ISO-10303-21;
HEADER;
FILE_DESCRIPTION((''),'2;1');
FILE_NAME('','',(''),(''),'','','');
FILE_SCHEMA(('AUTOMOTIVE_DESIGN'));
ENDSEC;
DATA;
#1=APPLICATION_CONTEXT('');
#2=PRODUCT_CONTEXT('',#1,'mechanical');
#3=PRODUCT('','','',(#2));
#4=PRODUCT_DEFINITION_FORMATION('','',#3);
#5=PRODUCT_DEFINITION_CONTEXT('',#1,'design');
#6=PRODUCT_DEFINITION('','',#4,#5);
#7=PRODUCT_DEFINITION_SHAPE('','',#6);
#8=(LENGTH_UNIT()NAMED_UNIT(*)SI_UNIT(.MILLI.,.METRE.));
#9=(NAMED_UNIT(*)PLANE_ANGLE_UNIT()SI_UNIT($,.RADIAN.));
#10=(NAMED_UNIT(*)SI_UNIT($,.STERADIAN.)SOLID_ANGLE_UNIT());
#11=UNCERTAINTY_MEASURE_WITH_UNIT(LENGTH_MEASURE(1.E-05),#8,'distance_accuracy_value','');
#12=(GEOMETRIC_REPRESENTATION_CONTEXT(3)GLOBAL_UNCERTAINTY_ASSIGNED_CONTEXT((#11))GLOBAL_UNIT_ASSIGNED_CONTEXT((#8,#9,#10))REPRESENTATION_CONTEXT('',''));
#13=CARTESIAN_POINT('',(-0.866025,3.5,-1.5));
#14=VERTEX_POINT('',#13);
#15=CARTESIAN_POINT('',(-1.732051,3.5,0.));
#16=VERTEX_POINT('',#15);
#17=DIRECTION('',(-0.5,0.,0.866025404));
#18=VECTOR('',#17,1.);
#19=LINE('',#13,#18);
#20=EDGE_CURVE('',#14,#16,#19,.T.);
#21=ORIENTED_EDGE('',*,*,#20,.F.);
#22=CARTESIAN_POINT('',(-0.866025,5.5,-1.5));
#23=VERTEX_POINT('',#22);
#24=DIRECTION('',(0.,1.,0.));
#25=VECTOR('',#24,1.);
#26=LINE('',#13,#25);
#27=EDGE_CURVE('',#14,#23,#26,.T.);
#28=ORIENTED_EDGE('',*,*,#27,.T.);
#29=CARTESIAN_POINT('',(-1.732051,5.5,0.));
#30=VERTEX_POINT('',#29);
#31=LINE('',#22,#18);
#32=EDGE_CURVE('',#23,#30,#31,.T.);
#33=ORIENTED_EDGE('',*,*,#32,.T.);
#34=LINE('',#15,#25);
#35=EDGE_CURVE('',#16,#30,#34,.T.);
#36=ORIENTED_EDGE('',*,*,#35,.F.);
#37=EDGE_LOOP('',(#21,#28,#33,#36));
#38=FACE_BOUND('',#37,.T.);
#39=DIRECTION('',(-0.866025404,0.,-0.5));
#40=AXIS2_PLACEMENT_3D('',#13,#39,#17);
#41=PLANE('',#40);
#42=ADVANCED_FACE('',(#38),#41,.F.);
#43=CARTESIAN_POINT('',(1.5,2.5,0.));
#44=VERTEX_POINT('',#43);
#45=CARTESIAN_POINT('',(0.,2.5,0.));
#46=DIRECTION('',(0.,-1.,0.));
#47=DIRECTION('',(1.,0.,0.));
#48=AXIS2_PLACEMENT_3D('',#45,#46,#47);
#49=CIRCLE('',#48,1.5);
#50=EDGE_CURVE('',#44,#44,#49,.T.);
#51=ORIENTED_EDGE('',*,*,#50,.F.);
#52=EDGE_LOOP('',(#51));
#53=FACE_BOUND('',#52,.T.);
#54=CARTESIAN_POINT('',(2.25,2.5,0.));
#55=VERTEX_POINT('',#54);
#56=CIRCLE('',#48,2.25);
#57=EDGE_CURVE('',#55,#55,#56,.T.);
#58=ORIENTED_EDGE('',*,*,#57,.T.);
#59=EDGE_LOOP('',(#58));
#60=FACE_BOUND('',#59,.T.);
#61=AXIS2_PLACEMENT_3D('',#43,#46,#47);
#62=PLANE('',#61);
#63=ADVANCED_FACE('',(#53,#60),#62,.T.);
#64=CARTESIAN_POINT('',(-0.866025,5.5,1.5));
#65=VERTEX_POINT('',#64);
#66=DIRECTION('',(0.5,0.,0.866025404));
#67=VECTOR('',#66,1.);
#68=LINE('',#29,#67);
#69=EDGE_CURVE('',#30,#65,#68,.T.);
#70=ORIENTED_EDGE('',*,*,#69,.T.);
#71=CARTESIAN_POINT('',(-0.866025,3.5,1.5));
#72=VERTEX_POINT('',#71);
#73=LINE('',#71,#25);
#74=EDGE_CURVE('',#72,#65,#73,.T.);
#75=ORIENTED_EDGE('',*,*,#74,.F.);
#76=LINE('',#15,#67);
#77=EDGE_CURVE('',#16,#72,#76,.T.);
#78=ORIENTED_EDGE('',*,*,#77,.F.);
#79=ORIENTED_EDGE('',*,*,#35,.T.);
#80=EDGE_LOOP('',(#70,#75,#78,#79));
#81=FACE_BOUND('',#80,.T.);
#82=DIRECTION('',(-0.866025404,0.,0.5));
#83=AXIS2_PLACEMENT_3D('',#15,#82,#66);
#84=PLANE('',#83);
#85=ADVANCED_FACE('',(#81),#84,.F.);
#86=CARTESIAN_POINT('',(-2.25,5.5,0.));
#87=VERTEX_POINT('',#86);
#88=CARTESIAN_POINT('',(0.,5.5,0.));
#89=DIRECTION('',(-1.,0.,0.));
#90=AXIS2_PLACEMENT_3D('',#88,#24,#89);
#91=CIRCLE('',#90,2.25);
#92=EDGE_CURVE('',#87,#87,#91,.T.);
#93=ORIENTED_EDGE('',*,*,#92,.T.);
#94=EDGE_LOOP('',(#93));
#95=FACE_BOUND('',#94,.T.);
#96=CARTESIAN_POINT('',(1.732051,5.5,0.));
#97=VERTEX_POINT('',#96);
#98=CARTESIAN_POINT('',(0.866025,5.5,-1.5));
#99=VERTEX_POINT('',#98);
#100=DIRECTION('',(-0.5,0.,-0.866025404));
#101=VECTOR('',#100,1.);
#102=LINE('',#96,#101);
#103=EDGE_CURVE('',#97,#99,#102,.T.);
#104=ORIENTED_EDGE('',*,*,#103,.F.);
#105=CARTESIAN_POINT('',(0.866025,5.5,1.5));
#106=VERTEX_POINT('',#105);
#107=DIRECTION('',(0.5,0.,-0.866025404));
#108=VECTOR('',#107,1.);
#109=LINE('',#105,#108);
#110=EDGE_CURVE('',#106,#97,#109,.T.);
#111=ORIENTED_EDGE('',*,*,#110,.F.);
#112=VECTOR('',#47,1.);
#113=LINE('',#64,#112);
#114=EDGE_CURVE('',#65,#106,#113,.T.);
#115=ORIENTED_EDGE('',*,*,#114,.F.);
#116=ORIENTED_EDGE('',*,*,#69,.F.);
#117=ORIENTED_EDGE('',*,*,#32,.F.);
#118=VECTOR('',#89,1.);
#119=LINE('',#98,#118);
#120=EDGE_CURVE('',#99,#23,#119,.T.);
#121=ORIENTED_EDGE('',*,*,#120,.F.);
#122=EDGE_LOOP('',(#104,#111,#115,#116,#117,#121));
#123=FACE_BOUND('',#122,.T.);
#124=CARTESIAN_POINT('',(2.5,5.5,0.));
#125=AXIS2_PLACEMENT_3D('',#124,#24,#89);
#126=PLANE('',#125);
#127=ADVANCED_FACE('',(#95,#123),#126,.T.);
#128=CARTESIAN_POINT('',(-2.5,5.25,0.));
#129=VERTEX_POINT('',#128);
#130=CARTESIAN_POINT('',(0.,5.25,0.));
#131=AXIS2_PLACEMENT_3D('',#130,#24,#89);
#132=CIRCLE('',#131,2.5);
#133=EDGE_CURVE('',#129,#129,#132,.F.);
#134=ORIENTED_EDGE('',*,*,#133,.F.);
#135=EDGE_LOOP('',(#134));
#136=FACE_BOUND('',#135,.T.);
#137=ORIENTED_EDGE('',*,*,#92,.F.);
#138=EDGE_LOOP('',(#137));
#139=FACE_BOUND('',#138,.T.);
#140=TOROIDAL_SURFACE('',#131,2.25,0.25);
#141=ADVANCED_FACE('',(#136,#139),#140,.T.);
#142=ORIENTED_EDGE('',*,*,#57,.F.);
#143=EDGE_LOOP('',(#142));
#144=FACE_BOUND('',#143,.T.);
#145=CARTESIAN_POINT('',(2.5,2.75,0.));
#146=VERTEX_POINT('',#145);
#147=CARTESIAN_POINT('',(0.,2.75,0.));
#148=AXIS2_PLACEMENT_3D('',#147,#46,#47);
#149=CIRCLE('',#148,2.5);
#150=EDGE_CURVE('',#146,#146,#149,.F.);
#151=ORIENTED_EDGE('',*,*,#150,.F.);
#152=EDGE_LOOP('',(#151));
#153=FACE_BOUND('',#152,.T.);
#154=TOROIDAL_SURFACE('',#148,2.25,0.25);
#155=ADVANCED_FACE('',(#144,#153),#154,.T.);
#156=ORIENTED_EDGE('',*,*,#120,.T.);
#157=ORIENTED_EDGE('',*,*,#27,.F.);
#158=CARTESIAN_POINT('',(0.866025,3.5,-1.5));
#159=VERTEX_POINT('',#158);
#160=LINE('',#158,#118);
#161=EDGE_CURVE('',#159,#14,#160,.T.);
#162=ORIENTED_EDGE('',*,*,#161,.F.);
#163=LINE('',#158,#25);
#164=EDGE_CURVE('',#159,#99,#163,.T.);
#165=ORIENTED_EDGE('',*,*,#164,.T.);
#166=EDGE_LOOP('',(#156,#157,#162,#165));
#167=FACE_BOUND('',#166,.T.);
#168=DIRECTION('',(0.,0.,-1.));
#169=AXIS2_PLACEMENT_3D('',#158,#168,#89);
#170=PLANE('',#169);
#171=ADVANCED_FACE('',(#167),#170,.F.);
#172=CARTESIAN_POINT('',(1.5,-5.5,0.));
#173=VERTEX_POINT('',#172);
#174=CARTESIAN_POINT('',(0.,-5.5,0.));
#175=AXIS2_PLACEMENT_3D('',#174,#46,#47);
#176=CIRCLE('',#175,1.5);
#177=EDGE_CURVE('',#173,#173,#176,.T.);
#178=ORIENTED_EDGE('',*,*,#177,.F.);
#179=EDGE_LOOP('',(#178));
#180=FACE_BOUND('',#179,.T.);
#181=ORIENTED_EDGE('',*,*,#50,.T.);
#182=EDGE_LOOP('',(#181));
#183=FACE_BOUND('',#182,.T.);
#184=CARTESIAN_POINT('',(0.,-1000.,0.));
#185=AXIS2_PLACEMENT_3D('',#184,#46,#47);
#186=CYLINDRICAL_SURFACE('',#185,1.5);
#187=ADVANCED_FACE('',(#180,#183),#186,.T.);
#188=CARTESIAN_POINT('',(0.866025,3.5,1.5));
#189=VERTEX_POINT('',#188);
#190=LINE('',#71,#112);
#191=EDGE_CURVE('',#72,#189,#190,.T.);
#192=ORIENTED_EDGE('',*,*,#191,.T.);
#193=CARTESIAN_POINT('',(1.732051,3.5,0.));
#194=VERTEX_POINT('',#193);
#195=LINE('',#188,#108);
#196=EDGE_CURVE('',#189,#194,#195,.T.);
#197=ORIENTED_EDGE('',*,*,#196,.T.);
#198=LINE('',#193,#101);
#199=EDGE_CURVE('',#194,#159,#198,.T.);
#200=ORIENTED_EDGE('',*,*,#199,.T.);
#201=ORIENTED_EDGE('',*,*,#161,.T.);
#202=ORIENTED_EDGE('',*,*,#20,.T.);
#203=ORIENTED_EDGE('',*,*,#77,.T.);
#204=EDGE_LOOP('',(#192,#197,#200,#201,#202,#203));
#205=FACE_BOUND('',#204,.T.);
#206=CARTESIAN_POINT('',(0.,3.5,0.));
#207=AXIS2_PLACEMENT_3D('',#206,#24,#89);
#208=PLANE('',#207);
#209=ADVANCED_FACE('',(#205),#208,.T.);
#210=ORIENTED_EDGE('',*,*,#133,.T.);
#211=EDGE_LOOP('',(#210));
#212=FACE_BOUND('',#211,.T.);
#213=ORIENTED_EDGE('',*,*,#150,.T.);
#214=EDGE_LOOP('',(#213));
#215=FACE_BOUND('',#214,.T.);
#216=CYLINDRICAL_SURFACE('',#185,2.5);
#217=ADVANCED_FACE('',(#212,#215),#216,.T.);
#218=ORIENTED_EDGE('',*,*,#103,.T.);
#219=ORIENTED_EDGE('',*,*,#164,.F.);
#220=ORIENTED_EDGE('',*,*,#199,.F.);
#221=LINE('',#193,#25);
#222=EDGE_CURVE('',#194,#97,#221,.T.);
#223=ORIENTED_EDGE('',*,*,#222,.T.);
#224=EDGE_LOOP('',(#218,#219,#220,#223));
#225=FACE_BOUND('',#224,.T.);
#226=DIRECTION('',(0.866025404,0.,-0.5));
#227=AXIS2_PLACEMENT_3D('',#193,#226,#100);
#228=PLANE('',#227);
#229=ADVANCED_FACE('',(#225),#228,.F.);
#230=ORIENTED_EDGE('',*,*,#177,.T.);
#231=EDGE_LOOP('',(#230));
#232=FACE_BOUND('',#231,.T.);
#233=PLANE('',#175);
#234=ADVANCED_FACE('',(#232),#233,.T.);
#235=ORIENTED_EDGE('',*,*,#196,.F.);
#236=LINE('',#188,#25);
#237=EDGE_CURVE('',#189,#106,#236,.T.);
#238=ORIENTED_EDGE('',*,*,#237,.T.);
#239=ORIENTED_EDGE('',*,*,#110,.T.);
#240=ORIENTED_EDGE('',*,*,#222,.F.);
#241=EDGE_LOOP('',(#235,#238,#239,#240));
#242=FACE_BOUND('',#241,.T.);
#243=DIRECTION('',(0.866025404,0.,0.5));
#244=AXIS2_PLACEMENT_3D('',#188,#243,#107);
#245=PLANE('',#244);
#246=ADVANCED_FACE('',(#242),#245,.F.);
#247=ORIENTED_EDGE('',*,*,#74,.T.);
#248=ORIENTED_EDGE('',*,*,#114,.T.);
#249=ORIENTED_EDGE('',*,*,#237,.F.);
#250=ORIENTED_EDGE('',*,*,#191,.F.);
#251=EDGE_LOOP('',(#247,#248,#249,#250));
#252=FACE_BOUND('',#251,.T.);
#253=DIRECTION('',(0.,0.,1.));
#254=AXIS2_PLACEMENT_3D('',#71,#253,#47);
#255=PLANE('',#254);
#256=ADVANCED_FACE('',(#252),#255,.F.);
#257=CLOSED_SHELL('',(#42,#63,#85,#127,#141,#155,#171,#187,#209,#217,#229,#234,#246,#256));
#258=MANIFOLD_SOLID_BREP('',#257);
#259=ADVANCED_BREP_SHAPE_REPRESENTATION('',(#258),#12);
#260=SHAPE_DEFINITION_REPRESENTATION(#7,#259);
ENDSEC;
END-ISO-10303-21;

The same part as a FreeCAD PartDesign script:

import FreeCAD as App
import Part
import Sketcher

V = App.Vector
Q = App.Units.Quantity


def edges_at(feature, points):
    """Names of the edges that pass closest to the given points."""
    edges = feature.Shape.Edges
    near = lambda p: min(range(len(edges)), key=lambda i: edges[i].distToShape(Part.Vertex(*p))[0])
    return sorted({f"Edge{near(p) + 1}" for p in points})

doc = App.newDocument("Part")
body = doc.addObject("PartDesign::Body", "Body")

sketch1 = body.newObject("Sketcher::SketchObject", "Sketch")
sketch1.AttachmentSupport = (doc.getObject("XY_Plane"), [""])
sketch1.MapMode = "FlatFace"
sketch1.addGeometry([
    Part.LineSegment(V(0, -5.5, 0), V(1.5, -5.5, 0)),
    Part.LineSegment(V(1.5, -5.5, 0), V(1.5, 2.5, 0)),
    Part.LineSegment(V(1.5, 2.5, 0), V(2.5, 2.5, 0)),
    Part.LineSegment(V(2.5, 2.5, 0), V(2.5, 5.5, 0)),
    Part.LineSegment(V(2.5, 5.5, 0), V(0, 5.5, 0)),
    Part.LineSegment(V(0, 5.5, 0), V(0, -5.5, 0)),
], False)
sketch1.addConstraint([
    Sketcher.Constraint("Coincident", 0, 2, 1, 1),
    Sketcher.Constraint("Coincident", 1, 2, 2, 1),
    Sketcher.Constraint("Coincident", 2, 2, 3, 1),
    Sketcher.Constraint("Coincident", 3, 2, 4, 1),
    Sketcher.Constraint("Coincident", 4, 2, 5, 1),
    Sketcher.Constraint("Coincident", 5, 2, 0, 1),
    Sketcher.Constraint("Horizontal", 0),
    Sketcher.Constraint("Vertical", 1),
    Sketcher.Constraint("Horizontal", 2),
    Sketcher.Constraint("Vertical", 3),
    Sketcher.Constraint("Horizontal", 4),
    Sketcher.Constraint("Vertical", 5),
    Sketcher.Constraint("Symmetric", 4, 2, 5, 2, -1, 1),
    Sketcher.Constraint("DistanceX", 2, 1, 2, 2, 1.0),
    Sketcher.Constraint("DistanceY", 1, 1, 1, 2, 8.0),
    Sketcher.Constraint("DistanceY", 3, 1, 3, 2, 3.0),
    Sketcher.Constraint("DistanceX", 0, 1, 0, 2, 1.5),
])
revolution = body.newObject("PartDesign::Revolution", "Revolution")
revolution.Profile = sketch1
revolution.ReferenceAxis = (sketch1, ["V_Axis"])
revolution.Angle = 360

sketch2 = body.newObject("Sketcher::SketchObject", "Sketch001")
sketch2.AttachmentSupport = (doc.getObject("XZ_Plane"), [""])
sketch2.MapMode = "FlatFace"
sketch2.AttachmentOffset = App.Placement(V(0, 0, -5.5), App.Rotation())
sketch2.addGeometry([
    Part.LineSegment(V(0.866025, -1.5, 0), V(-0.866025, -1.5, 0)),
    Part.LineSegment(V(-0.866025, -1.5, 0), V(-1.732051, 0, 0)),
    Part.LineSegment(V(-1.732051, 0, 0), V(-0.866025, 1.5, 0)),
    Part.LineSegment(V(-0.866025, 1.5, 0), V(0.866025, 1.5, 0)),
    Part.LineSegment(V(0.866025, 1.5, 0), V(1.732051, 0, 0)),
    Part.LineSegment(V(1.732051, 0, 0), V(0.866025, -1.5, 0)),
], False)
sketch2.addConstraint([
    Sketcher.Constraint("Coincident", 0, 2, 1, 1),
    Sketcher.Constraint("Coincident", 1, 2, 2, 1),
    Sketcher.Constraint("Coincident", 2, 2, 3, 1),
    Sketcher.Constraint("Coincident", 3, 2, 4, 1),
    Sketcher.Constraint("Coincident", 4, 2, 5, 1),
    Sketcher.Constraint("Coincident", 5, 2, 0, 1),
    Sketcher.Constraint("Horizontal", 0),
    Sketcher.Constraint("Horizontal", 3),
    Sketcher.Constraint("Symmetric", 0, 2, 3, 2, -1, 1),
    Sketcher.Constraint("Symmetric", 1, 2, 4, 2, -1, 1),
    Sketcher.Constraint("PointOnObject", 1, 2, -1),
    Sketcher.Constraint("Parallel", 2, 5),
    Sketcher.Constraint("Vertical", 0, 2, 2, 2),
    Sketcher.Constraint("Angle", 1, Q("120 deg")),
    Sketcher.Constraint("DistanceY", 0, 2, 2, 2, 3.0),
    Sketcher.Constraint("DistanceX", 0, 2, 0, 1, 1.732051),
])
pocket1 = body.newObject("PartDesign::Pocket", "Pocket")
pocket1.Profile = sketch2
pocket1.Length = 2
pocket1.Reversed = True
doc.recompute()

fillet = body.newObject("PartDesign::Fillet", "Fillet")
fillet.Base = (pocket1, edges_at(pocket1, [(-2.5, 5.5, 0), (-2.5, 2.5, 0)]))
fillet.Radius = 0.25

doc.recompute()
